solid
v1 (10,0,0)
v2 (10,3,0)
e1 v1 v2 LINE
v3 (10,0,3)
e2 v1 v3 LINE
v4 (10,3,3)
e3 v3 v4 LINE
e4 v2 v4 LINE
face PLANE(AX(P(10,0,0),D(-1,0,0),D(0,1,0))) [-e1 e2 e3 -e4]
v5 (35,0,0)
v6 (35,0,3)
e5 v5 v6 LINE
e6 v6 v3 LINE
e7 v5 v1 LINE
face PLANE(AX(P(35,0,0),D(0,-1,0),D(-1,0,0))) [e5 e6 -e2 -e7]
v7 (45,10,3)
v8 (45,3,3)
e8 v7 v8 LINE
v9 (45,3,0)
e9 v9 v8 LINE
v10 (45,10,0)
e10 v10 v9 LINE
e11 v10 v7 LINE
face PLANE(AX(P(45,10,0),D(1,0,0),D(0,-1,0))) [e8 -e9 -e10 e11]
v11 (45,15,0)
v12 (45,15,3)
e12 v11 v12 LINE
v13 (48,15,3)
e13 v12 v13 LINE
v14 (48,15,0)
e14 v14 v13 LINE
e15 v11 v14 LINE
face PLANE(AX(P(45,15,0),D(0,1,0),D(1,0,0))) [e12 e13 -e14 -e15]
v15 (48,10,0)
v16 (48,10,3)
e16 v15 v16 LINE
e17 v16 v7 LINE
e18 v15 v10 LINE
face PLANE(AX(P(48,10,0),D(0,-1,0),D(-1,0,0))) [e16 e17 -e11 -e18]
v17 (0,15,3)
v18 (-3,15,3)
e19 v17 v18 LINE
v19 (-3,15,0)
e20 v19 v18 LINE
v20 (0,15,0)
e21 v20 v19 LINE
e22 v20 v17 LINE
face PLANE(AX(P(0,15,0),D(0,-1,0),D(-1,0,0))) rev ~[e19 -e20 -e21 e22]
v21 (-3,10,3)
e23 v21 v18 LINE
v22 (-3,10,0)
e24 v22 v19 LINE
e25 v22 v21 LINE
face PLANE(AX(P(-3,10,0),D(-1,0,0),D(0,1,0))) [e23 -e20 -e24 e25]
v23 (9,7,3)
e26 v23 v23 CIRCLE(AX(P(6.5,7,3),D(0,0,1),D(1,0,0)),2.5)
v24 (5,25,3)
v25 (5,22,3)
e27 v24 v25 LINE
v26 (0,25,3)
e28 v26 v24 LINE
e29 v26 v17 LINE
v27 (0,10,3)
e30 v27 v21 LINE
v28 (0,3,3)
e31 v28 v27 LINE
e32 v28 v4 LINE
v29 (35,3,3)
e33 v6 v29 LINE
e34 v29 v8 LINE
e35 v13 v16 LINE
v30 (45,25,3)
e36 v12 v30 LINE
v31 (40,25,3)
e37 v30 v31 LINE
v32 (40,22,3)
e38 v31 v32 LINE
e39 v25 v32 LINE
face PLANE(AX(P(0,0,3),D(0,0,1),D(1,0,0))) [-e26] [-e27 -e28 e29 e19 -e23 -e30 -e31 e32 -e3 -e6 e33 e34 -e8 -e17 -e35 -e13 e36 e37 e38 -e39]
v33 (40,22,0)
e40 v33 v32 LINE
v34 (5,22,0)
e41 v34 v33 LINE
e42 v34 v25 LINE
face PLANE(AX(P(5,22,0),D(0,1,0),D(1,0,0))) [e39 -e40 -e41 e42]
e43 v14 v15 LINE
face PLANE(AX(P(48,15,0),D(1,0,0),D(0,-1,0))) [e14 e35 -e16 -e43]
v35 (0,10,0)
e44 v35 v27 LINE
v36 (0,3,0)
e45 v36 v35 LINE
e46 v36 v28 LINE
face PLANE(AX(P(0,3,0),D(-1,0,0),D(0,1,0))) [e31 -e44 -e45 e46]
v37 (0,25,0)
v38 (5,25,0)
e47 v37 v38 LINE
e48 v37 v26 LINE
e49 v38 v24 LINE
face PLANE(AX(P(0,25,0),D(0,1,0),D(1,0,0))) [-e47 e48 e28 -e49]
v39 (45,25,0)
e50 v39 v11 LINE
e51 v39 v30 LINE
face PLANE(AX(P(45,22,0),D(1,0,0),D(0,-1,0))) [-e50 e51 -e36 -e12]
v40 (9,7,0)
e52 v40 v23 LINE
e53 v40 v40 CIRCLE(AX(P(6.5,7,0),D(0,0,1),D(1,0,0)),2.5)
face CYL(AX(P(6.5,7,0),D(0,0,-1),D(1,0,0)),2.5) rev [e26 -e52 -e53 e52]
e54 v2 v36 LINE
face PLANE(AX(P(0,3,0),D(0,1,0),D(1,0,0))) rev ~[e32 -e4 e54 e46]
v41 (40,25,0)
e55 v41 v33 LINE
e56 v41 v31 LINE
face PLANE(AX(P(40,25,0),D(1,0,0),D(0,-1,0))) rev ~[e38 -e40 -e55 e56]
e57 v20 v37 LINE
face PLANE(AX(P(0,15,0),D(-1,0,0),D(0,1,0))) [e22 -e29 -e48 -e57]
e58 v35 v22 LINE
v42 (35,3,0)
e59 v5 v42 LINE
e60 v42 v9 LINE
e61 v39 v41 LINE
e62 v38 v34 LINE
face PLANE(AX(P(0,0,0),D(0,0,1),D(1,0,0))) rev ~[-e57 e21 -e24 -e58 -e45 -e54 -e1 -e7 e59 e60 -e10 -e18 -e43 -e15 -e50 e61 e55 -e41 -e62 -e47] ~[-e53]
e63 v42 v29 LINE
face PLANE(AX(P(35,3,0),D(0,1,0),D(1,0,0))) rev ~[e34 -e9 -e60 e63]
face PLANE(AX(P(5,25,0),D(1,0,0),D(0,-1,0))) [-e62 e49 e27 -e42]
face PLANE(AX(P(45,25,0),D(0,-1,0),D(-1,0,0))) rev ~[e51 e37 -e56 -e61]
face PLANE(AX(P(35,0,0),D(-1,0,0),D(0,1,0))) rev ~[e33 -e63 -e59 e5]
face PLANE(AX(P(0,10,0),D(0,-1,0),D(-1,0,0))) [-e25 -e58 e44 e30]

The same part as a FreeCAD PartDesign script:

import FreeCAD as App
import Part
import Sketcher
Q = App.Units.Quantity

doc = App.newDocument("Part")
body = doc.addObject("PartDesign::Body", "Body")

# Sketch on XY plane
sketch1 = doc.addObject("Sketcher::SketchObject", "Sketch")
body.addObject(sketch1)
sketch1.AttachmentSupport = (doc.XY_Plane, [""])
sketch1.MapMode = "FlatFace"
sketch1.addGeometry(Part.LineSegment(App.Vector(10, 3, 0), App.Vector(10, 0, 0)), False)
sketch1.addGeometry(Part.LineSegment(App.Vector(10, 0, 0), App.Vector(35, 0, 0)), False)
sketch1.addGeometry(Part.LineSegment(App.Vector(35, 0, 0), App.Vector(35, 3, 0)), False)
sketch1.addGeometry(Part.LineSegment(App.Vector(35, 3, 0), App.Vector(45, 3, 0)), False)
sketch1.addGeometry(Part.LineSegment(App.Vector(45, 3, 0), App.Vector(45, 10, 0)), False)
sketch1.addGeometry(Part.LineSegment(App.Vector(45, 10, 0), App.Vector(48, 10, 0)), False)
sketch1.addGeometry(Part.LineSegment(App.Vector(48, 10, 0), App.Vector(48, 15, 0)), False)
sketch1.addGeometry(Part.LineSegment(App.Vector(48, 15, 0), App.Vector(45, 15, 0)), False)
sketch1.addGeometry(Part.LineSegment(App.Vector(45, 15, 0), App.Vector(45, 25, 0)), False)
sketch1.addGeometry(Part.LineSegment(App.Vector(45, 25, 0), App.Vector(40, 25, 0)), False)
sketch1.addGeometry(Part.LineSegment(App.Vector(40, 25, 0), App.Vector(40, 22, 0)), False)
sketch1.addGeometry(Part.LineSegment(App.Vector(40, 22, 0), App.Vector(5, 22, 0)), False)
sketch1.addGeometry(Part.LineSegment(App.Vector(5, 22, 0), App.Vector(5, 25, 0)), False)
sketch1.addGeometry(Part.LineSegment(App.Vector(5, 25, 0), App.Vector(0, 25, 0)), False)
sketch1.addGeometry(Part.LineSegment(App.Vector(0, 25, 0), App.Vector(0, 15, 0)), False)
sketch1.addGeometry(Part.LineSegment(App.Vector(0, 15, 0), App.Vector(-3, 15, 0)), False)
sketch1.addGeometry(Part.LineSegment(App.Vector(-3, 15, 0), App.Vector(-3, 10, 0)), False)
sketch1.addGeometry(Part.LineSegment(App.Vector(-3, 10, 0), App.Vector(0, 10, 0)), False)
sketch1.addGeometry(Part.LineSegment(App.Vector(0, 10, 0), App.Vector(0, 3, 0)), False)
sketch1.addGeometry(Part.LineSegment(App.Vector(0, 3, 0), App.Vector(10, 3, 0)), False)
sketch1.addGeometry(Part.Circle(App.Vector(6.5, 7, 0), App.Vector(0, 0, 1), 2.5), False)
sketch1.addConstraint(Sketcher.Constraint("Coincident", 0, 2, 1, 1))
sketch1.addConstraint(Sketcher.Constraint("Coincident", 1, 2, 2, 1))
sketch1.addConstraint(Sketcher.Constraint("Coincident", 2, 2, 3, 1))
sketch1.addConstraint(Sketcher.Constraint("Coincident", 3, 2, 4, 1))
sketch1.addConstraint(Sketcher.Constraint("Coincident", 4, 2, 5, 1))
sketch1.addConstraint(Sketcher.Constraint("Coincident", 5, 2, 6, 1))
sketch1.addConstraint(Sketcher.Constraint("Coincident", 6, 2, 7, 1))
sketch1.addConstraint(Sketcher.Constraint("Coincident", 7, 2, 8, 1))
sketch1.addConstraint(Sketcher.Constraint("Coincident", 8, 2, 9, 1))
sketch1.addConstraint(Sketcher.Constraint("Coincident", 9, 2, 10, 1))
sketch1.addConstraint(Sketcher.Constraint("Coincident", 10, 2, 11, 1))
sketch1.addConstraint(Sketcher.Constraint("Coincident", 11, 2, 12, 1))
sketch1.addConstraint(Sketcher.Constraint("Coincident", 12, 2, 13, 1))
sketch1.addConstraint(Sketcher.Constraint("Coincident", 13, 2, 14, 1))
sketch1.addConstraint(Sketcher.Constraint("Coincident", 14, 2, 15, 1))
sketch1.addConstraint(Sketcher.Constraint("Coincident", 15, 2, 16, 1))
sketch1.addConstraint(Sketcher.Constraint("Coincident", 16, 2, 17, 1))
sketch1.addConstraint(Sketcher.Constraint("Coincident", 17, 2, 18, 1))
sketch1.addConstraint(Sketcher.Constraint("Coincident", 18, 2, 19, 1))
sketch1.addConstraint(Sketcher.Constraint("Coincident", 19, 2, 0, 1))
sketch1.addConstraint(Sketcher.Constraint("Vertical", 0))
sketch1.addConstraint(Sketcher.Constraint("Horizontal", 1))
sketch1.addConstraint(Sketcher.Constraint("Vertical", 2))
sketch1.addConstraint(Sketcher.Constraint("Horizontal", 3))
sketch1.addConstraint(Sketcher.Constraint("Vertical", 4))
sketch1.addConstraint(Sketcher.Constraint("Horizontal", 5))
sketch1.addConstraint(Sketcher.Constraint("Vertical", 6))
sketch1.addConstraint(Sketcher.Constraint("Horizontal", 7))
sketch1.addConstraint(Sketcher.Constraint("Vertical", 8))
sketch1.addConstraint(Sketcher.Constraint("Horizontal", 9))
sketch1.addConstraint(Sketcher.Constraint("Vertical", 10))
sketch1.addConstraint(Sketcher.Constraint("Horizontal", 11))
sketch1.addConstraint(Sketcher.Constraint("Vertical", 12))
sketch1.addConstraint(Sketcher.Constraint("Horizontal", 13))
sketch1.addConstraint(Sketcher.Constraint("Vertical", 14))
sketch1.addConstraint(Sketcher.Constraint("Horizontal", 15))
sketch1.addConstraint(Sketcher.Constraint("Vertical", 16))
sketch1.addConstraint(Sketcher.Constraint("Horizontal", 17))
sketch1.addConstraint(Sketcher.Constraint("Vertical", 18))
sketch1.addConstraint(Sketcher.Constraint("Horizontal", 19))
sketch1.addConstraint(Sketcher.Constraint("PointOnObject", 0, 2, -1))
sketch1.addConstraint(Sketcher.Constraint("PointOnObject", 13, 2, -2))
sketch1.addConstraint(Sketcher.Constraint("PointOnObject", 17, 2, -2))
sketch1.addConstraint(Sketcher.Constraint("Horizontal", 9, 2, 12, 2))
sketch1.addConstraint(Sketcher.Constraint("Horizontal", 7, 2, 14, 2))
sketch1.addConstraint(Sketcher.Constraint("Horizontal", 5, 2, 16, 2))
sketch1.addConstraint(Sketcher.Constraint("Horizontal", 3, 2, 18, 2))
sketch1.addConstraint(Sketcher.Constraint("Vertical", 4, 2, 7, 2))
sketch1.addConstraint(Sketcher.Constraint("Equal", 9, 13))
sketch1.addConstraint(Sketcher.Constraint("Equal", 7, 15))
sketch1.addConstraint(Sketcher.Constraint("Equal", 3, 19))
sketch1.addConstraint(Sketcher.Constraint("Equal", 17, 0))
sketch1.addConstraint(Sketcher.Constraint("Equal", 13, 6))
sketch1.addConstraint(Sketcher.Constraint("Equal", 19, 8))
sketch1.addConstraint(Sketcher.Constraint("Equal", 2, 10))
sketch1.addConstraint(Sketcher.Constraint("Diameter", 20, Q("5 mm")))
sketch1.addConstraint(Sketcher.Constraint("DistanceX", 5, 1, 5, 2, Q("3 mm")))
sketch1.addConstraint(Sketcher.Constraint("DistanceX", 9, 2, 9, 1, Q("5 mm")))
sketch1.addConstraint(Sketcher.Constraint("DistanceY", 20, 3, 4, 2, Q("3 mm")))
sketch1.addConstraint(Sketcher.Constraint("DistanceX", 11, 2, 0, 2, Q("5 mm")))
sketch1.addConstraint(Sketcher.Constraint("DistanceX", 1, 1, 1, 2, Q("25 mm")))
sketch1.addConstraint(Sketcher.Constraint("DistanceY", 4, 1, 4, 2, Q("7 mm")))
sketch1.addConstraint(Sketcher.Constraint("DistanceX", -1, 1, 20, 3, Q("6.5 mm")))
pad1 = doc.addObject("PartDesign::Pad", "Pad")
body.addObject(pad1)
pad1.Profile = sketch1
pad1.Length = 3

doc.recompute()
